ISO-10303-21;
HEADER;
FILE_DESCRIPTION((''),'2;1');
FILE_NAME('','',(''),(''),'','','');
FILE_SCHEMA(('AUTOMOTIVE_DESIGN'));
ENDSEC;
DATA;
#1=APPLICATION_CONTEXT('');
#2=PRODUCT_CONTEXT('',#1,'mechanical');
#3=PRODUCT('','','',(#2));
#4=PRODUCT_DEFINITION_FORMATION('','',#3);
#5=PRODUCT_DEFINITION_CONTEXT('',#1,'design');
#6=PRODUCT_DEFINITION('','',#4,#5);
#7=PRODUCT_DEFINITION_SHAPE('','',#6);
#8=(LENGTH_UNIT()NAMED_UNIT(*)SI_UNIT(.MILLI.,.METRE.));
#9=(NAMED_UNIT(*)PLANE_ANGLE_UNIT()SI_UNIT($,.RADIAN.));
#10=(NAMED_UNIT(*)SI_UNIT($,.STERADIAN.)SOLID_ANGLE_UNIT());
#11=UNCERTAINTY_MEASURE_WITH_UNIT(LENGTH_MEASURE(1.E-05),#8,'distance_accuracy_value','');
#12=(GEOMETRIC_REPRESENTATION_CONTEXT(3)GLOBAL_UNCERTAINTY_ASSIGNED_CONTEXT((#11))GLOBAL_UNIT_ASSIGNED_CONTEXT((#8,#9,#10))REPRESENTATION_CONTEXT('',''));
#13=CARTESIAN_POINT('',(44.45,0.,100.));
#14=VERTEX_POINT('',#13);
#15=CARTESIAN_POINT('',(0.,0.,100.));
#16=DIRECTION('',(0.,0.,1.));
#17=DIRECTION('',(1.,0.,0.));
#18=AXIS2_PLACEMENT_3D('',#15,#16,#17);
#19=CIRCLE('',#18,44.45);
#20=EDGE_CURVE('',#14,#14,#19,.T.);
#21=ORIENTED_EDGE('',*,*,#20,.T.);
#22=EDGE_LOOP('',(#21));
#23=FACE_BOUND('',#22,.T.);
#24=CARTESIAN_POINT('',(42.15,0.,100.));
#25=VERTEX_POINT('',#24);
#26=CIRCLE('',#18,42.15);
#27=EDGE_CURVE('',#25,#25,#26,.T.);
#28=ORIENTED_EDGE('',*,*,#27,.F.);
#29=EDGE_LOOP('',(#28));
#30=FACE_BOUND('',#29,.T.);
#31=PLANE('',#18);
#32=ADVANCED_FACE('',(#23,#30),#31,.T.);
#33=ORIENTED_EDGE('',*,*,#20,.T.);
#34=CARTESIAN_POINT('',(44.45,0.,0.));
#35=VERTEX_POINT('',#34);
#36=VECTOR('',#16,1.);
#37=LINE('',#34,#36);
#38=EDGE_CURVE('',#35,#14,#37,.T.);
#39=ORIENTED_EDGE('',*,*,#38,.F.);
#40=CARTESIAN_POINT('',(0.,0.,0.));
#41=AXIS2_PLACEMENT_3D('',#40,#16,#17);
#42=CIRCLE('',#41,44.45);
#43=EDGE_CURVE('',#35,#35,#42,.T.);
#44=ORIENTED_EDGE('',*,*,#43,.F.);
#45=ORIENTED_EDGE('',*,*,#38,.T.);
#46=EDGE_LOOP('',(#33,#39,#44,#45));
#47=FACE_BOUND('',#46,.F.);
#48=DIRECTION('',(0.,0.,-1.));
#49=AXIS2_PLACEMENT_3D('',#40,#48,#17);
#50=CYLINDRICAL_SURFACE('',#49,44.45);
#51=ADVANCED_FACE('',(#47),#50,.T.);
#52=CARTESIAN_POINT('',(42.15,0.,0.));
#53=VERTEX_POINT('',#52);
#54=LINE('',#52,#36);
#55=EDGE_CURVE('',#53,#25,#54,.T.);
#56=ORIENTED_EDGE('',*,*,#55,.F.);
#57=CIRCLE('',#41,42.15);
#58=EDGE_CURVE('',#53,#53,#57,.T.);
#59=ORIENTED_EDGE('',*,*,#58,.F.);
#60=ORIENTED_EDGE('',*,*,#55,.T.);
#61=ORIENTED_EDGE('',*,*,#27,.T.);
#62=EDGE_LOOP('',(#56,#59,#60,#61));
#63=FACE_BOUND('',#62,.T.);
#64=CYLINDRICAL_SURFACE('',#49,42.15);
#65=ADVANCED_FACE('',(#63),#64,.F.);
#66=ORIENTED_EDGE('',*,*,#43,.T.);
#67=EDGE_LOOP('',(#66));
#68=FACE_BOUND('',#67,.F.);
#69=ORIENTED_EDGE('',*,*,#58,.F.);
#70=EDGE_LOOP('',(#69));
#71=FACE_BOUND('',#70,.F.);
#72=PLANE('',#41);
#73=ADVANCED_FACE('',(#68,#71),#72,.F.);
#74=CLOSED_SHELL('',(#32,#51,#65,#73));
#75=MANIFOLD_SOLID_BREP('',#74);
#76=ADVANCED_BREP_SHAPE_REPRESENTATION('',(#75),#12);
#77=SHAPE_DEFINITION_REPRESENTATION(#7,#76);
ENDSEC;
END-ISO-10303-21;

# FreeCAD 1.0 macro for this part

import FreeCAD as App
import Part
import Sketcher
Q = App.Units.Quantity

doc = App.newDocument("Part")
body = doc.addObject("PartDesign::Body", "Body")

# Sketch on XY plane
sketch1 = doc.addObject("Sketcher::SketchObject", "Sketch")
body.addObject(sketch1)
sketch1.AttachmentSupport = (doc.XY_Plane, [""])
sketch1.MapMode = "FlatFace"
sketch1.addGeometry(Part.Circle(App.Vector(0, 0, 0), App.Vector(0, 0, 1), 44), False)
sketch1.addGeometry(Part.Circle(App.Vector(0, 0, 0), App.Vector(0, 0, 1), 42), False)
sketch1.addConstraint(Sketcher.Constraint("Coincident", 0, 3, -1, 1))
sketch1.addConstraint(Sketcher.Constraint("Coincident", 1, 3, -1, 1))
sketch1.addConstraint(Sketcher.Constraint("Diameter", 0, Q("3.5 in")))
sketch1.addConstraint(Sketcher.Constraint("Diameter", 1, Q("3.3189 in")))
pad1 = doc.addObject("PartDesign::Pad", "Pad")
body.addObject(pad1)
pad1.Profile = sketch1
pad1.Length = Q("3.9370079 in")

doc.recompute()
